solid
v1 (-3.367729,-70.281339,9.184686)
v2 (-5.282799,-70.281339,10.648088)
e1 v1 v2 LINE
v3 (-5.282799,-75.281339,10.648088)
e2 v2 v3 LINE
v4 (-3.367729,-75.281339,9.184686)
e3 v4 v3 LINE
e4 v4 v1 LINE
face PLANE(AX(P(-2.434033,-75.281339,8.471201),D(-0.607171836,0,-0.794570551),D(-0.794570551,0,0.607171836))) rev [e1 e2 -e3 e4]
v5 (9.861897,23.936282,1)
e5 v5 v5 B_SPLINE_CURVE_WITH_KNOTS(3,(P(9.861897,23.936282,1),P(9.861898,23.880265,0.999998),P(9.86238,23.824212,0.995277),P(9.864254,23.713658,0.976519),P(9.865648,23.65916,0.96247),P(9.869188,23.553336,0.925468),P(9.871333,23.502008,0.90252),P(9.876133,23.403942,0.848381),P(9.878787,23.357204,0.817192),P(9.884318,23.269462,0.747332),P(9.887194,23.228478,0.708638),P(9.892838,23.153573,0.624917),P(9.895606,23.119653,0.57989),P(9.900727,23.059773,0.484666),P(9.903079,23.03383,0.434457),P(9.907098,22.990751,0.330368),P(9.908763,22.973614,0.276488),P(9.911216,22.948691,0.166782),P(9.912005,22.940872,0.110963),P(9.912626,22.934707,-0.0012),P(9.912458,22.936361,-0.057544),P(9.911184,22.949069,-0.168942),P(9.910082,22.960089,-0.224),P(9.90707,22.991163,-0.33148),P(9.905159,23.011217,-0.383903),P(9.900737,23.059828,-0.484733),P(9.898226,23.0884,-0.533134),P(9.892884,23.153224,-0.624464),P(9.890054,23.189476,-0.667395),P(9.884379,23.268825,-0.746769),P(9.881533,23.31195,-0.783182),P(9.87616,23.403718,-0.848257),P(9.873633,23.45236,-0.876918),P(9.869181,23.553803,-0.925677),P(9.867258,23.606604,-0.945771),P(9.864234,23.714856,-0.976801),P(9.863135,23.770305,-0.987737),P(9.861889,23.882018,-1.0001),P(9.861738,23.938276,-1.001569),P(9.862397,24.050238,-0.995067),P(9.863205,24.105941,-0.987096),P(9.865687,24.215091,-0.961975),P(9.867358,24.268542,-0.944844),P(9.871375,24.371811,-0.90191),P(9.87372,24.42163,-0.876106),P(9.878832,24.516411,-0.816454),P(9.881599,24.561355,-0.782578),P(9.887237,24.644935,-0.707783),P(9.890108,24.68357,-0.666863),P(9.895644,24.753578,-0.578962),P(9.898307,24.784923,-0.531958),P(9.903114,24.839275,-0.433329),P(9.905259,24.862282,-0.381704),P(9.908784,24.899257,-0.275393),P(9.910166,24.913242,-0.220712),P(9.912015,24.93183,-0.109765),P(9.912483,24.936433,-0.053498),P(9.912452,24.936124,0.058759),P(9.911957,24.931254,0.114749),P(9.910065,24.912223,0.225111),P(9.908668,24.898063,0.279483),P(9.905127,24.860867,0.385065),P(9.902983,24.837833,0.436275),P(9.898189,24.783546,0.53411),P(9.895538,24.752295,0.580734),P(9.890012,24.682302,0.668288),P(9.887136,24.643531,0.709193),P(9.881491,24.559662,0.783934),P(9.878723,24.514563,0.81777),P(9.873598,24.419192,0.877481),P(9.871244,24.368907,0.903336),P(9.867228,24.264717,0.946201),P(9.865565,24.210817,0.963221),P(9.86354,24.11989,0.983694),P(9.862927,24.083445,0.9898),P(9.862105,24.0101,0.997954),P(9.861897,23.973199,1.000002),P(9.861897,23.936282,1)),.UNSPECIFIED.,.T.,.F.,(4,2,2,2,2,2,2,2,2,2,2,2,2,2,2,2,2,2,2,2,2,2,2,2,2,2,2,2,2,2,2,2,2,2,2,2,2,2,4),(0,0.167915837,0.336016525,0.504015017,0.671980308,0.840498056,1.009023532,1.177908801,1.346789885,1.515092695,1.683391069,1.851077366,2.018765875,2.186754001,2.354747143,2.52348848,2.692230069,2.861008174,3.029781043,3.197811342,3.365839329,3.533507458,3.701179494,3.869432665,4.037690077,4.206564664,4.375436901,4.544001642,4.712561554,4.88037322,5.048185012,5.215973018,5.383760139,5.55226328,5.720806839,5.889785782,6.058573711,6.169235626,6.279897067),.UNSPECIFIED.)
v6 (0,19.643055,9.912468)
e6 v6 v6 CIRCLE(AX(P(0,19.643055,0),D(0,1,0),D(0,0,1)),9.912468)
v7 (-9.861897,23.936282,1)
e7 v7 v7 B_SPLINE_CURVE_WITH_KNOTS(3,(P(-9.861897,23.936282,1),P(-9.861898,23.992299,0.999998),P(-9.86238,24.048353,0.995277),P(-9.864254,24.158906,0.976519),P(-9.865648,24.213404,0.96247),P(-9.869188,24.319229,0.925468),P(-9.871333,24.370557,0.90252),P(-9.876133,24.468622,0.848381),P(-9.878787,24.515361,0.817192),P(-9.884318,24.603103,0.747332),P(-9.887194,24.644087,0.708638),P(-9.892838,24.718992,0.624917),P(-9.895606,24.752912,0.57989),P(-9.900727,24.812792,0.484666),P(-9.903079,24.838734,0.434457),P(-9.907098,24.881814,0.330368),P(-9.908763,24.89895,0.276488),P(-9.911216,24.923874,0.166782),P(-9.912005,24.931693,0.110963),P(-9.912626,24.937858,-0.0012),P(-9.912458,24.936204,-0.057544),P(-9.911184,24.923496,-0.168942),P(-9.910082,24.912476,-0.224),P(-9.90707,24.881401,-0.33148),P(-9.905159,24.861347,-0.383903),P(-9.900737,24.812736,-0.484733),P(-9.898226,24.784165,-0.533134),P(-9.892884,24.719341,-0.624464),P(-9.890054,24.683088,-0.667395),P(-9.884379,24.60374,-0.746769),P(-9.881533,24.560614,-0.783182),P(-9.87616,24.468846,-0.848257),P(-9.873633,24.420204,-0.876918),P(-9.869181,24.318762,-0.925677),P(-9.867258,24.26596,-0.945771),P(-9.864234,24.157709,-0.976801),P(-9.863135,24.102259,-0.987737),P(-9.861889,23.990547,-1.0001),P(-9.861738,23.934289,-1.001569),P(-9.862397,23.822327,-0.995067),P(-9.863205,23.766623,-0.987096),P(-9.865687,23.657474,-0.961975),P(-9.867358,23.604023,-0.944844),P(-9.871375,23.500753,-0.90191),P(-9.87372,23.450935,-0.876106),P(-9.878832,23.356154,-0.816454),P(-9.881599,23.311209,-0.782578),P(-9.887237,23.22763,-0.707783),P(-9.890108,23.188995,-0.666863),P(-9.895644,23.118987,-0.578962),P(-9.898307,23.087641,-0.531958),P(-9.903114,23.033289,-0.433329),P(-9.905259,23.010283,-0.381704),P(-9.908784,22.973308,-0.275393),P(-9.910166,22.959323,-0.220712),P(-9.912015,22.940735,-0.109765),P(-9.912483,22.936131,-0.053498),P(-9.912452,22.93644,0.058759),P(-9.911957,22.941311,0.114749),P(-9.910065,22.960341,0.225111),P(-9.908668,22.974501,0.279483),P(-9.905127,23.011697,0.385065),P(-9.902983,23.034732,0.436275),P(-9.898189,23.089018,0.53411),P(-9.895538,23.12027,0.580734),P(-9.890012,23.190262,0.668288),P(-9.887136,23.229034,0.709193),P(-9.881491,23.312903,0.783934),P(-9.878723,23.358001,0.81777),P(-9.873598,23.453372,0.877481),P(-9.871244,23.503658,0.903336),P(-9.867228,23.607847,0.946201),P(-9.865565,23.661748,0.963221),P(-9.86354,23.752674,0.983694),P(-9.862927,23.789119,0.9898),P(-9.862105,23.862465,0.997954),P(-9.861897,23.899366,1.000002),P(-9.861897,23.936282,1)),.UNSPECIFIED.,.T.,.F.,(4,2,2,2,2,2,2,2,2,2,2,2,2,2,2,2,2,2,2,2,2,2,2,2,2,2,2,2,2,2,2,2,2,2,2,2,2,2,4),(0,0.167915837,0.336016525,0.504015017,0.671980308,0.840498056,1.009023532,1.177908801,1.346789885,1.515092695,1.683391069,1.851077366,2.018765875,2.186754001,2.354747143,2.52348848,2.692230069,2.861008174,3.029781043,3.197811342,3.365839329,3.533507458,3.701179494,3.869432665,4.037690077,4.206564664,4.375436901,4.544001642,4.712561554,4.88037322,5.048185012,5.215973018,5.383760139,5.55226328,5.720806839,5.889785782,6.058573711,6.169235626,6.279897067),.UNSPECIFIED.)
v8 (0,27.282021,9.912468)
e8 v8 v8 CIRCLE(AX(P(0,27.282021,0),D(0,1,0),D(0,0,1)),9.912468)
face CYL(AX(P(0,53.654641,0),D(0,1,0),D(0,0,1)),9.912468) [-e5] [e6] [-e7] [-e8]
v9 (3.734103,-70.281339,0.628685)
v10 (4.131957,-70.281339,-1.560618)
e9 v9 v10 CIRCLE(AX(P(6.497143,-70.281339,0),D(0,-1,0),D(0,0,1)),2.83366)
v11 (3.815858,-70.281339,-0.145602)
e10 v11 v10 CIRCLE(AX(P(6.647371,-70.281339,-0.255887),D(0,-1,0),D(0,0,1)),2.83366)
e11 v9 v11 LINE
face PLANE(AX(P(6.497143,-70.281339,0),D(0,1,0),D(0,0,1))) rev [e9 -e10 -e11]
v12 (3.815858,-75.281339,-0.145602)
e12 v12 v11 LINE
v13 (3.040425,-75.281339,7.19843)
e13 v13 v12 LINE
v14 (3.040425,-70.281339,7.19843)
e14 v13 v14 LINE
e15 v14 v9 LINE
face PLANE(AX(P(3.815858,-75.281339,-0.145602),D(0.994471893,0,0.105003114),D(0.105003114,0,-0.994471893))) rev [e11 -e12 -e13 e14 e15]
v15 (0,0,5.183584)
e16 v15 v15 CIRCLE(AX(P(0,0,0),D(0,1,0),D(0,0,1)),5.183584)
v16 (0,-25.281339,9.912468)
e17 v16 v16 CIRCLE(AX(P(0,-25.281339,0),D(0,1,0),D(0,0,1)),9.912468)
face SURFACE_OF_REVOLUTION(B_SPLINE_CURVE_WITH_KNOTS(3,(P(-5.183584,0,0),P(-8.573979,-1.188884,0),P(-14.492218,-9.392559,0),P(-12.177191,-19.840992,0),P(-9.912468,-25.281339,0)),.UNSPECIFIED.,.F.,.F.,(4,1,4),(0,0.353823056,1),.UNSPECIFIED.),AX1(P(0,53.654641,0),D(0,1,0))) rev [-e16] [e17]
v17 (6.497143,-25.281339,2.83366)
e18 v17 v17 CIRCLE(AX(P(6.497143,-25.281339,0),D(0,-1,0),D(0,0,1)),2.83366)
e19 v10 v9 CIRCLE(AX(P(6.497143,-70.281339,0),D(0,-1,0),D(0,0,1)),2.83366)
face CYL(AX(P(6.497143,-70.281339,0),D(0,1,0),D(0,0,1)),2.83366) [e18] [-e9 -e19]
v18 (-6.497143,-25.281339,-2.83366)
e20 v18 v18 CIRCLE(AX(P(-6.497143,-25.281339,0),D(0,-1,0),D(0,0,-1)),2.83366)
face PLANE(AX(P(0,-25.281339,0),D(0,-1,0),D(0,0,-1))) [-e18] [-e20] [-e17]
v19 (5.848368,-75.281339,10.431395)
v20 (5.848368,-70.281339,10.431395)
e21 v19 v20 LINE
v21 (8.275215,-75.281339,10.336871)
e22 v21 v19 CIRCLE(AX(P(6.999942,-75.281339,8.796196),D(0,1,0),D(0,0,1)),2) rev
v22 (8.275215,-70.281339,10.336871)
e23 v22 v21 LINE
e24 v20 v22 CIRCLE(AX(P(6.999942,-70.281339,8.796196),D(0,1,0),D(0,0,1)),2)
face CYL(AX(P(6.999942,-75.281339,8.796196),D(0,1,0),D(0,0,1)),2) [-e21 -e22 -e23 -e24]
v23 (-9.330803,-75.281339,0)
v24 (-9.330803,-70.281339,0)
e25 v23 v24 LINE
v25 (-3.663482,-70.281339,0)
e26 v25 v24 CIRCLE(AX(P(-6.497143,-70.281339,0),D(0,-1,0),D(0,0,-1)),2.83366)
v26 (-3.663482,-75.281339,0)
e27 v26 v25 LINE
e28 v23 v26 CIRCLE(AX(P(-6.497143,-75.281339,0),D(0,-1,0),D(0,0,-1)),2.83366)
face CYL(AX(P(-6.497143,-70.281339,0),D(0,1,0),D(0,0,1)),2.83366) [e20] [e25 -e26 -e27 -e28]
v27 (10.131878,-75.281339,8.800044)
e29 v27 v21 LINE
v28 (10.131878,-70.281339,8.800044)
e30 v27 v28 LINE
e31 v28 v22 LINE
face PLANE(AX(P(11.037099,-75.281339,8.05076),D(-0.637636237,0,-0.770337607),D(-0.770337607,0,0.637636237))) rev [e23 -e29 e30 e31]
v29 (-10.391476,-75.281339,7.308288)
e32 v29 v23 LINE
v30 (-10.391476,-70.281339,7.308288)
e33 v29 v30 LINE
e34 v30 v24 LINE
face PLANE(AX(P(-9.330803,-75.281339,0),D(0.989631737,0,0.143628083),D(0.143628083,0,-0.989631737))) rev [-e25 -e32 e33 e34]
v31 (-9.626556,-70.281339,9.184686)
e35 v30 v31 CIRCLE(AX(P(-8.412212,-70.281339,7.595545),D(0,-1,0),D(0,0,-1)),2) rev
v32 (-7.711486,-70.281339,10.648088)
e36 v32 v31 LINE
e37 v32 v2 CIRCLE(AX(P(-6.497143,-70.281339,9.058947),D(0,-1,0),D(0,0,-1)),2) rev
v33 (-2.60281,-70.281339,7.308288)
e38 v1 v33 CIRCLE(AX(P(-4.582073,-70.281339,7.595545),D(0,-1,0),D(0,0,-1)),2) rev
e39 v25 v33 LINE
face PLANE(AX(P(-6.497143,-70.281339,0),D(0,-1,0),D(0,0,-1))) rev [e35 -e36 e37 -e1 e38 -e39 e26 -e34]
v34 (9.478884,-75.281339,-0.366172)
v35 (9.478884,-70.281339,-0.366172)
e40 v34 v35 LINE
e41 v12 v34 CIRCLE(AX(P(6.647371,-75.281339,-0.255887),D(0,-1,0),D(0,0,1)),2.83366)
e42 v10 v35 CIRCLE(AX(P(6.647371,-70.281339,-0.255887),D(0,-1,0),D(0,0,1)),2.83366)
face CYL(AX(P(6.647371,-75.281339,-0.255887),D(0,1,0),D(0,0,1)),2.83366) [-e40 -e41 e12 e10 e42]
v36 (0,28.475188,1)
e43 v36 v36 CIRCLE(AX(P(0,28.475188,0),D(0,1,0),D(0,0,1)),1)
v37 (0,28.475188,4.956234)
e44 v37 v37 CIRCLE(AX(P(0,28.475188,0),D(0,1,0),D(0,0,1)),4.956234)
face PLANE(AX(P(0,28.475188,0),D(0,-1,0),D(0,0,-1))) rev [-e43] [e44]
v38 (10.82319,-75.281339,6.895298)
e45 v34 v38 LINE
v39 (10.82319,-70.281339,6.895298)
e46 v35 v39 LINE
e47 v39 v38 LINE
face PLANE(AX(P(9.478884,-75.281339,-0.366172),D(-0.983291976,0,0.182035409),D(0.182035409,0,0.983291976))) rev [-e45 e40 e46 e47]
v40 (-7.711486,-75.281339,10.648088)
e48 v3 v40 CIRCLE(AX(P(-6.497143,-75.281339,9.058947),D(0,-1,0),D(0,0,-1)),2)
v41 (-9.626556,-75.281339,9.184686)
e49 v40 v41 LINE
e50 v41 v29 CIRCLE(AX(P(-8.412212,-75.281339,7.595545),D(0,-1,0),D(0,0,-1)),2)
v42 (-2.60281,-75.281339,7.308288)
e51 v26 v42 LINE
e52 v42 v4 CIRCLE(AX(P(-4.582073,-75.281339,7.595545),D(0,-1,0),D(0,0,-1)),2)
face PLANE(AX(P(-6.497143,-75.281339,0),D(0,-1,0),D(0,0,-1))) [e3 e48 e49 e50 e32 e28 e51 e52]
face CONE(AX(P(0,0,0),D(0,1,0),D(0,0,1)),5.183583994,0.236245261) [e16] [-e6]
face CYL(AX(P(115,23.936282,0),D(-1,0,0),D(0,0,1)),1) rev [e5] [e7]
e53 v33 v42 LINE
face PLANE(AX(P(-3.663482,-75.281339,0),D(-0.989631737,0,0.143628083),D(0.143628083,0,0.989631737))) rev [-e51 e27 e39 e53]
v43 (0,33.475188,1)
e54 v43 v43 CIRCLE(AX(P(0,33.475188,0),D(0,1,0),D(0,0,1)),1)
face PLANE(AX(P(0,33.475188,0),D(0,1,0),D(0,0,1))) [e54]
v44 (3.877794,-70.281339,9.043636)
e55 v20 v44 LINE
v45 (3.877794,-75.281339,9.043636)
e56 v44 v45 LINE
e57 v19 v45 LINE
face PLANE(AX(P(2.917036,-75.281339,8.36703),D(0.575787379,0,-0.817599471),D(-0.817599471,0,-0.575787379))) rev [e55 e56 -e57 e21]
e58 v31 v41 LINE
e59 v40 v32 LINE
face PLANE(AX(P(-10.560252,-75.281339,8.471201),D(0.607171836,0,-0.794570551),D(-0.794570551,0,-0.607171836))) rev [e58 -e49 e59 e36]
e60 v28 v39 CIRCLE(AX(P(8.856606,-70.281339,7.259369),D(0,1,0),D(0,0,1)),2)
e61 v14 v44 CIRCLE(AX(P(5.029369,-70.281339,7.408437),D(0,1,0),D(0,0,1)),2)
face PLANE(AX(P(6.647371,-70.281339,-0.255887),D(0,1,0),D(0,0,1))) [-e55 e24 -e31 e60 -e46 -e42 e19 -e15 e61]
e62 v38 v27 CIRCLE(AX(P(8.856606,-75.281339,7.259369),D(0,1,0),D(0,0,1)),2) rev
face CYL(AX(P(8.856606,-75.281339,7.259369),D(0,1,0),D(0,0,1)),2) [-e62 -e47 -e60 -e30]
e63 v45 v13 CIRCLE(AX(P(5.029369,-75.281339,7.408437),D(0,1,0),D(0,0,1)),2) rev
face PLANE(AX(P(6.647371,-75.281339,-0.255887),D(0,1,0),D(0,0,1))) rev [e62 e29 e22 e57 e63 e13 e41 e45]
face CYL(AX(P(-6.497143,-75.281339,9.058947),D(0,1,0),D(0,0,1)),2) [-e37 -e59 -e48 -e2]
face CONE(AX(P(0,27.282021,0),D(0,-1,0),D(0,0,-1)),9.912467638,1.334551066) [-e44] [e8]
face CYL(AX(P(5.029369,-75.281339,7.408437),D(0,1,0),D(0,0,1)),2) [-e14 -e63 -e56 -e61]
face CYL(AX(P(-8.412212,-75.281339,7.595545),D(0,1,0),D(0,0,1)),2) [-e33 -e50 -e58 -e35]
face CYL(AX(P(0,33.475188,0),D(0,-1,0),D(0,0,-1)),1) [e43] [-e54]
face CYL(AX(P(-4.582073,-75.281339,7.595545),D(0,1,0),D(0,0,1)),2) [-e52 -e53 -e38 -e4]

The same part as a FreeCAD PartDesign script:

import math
import FreeCAD as App
import Part
import Sketcher
from FreeCAD import Vector
Q = App.Units.Quantity


def edges_at(feature, points):
    """Names of the edges that pass closest to the given points."""
    edges = feature.Shape.Edges
    near = lambda p: min(range(len(edges)), key=lambda i: edges[i].distToShape(Part.Vertex(*p))[0])
    return sorted({f"Edge{near(p) + 1}" for p in points})

doc = App.newDocument("Part")
body = doc.addObject("PartDesign::Body", "Body")

sketch1 = body.newObject("Sketcher::SketchObject", "Sketch")
sketch1.AttachmentSupport = (doc.getObject("XY_Plane"), [""])
sketch1.MapMode = "FlatFace"
sketch1.addGeometry(Part.LineSegment(Vector(0, 28.475188, 0), Vector(-4.956234, 28.475188, 0)), False)
sketch1.addGeometry(Part.LineSegment(Vector(-4.956234, 28.475188, 0), Vector(-9.912468, 27.282021, 0)), False)
sketch1.addGeometry(Part.LineSegment(Vector(-9.912468, 27.282021, 0), Vector(-9.912468, 19.643055, 0)), False)
sketch1.addGeometry(Part.LineSegment(Vector(-9.912468, 19.643055, 0), Vector(-5.183584, 0, 0)), False)
sketch1.addGeometry(Part.BSplineCurve([Vector(-5.183584, 0, 0), Vector(-8.573979, -1.188884, 0), Vector(-14.492218, -9.392559, 0), Vector(-12.177191, -19.840992, 0), Vector(-9.912468, -25.281339, 0)], [4, 1, 4], [0, 0.353823056, 1], False, 3, [1, 1, 1, 1, 1], False), False)
sketch1.addGeometry(Part.LineSegment(Vector(-9.912468, -25.281339, 0), Vector(0, -25.281339, 0)), False)
sketch1.addGeometry(Part.LineSegment(Vector(0, -25.281339, 0), Vector(0, 28.475188, 0)), False)
sketch1.addConstraint(Sketcher.Constraint("Block", 4))
sketch1.addConstraint(Sketcher.Constraint("Coincident", 0, 2, 1, 1))
sketch1.addConstraint(Sketcher.Constraint("Coincident", 1, 2, 2, 1))
sketch1.addConstraint(Sketcher.Constraint("Coincident", 2, 2, 3, 1))
sketch1.addConstraint(Sketcher.Constraint("Coincident", 3, 2, 4, 1))
sketch1.addConstraint(Sketcher.Constraint("Coincident", 4, 2, 5, 1))
sketch1.addConstraint(Sketcher.Constraint("Coincident", 5, 2, 6, 1))
sketch1.addConstraint(Sketcher.Constraint("Coincident", 6, 2, 0, 1))
sketch1.addConstraint(Sketcher.Constraint("Horizontal", 0))
sketch1.addConstraint(Sketcher.Constraint("Vertical", 2))
sketch1.addConstraint(Sketcher.Constraint("Horizontal", 5))
sketch1.addConstraint(Sketcher.Constraint("Vertical", 6))
sketch1.addConstraint(Sketcher.Constraint("PointOnObject", 5, 2, -2))
sketch1.addConstraint(Sketcher.Constraint("DistanceX", 0, 2, 0, 1, Q("4.956234 mm")))
sketch1.addConstraint(Sketcher.Constraint("DistanceY", 2, 2, 2, 1, Q("7.638966 mm")))
sketch1.addConstraint(Sketcher.Constraint("DistanceY", 6, 1, 6, 2, Q("53.756528 mm")))
sketch1.addConstraint(Sketcher.Constraint("DistanceY", -1, 1, 1, 2, Q("27.282021 mm")))
sketch1.addConstraint(Sketcher.Constraint("Distance", 1, Q("5.097833 mm")))
revolution = body.newObject("PartDesign::Revolution", "Revolution")
revolution.Profile = sketch1
revolution.ReferenceAxis = (sketch1, ["V_Axis"])
revolution.Angle = 360

sketch2 = body.newObject("Sketcher::SketchObject", "Sketch001")
sketch2.AttachmentSupport = (doc.getObject("XZ_Plane"), [""])
sketch2.MapMode = "FlatFace"
sketch2.AttachmentOffset = App.Placement(Vector(0, 0, 25.281339), App.Rotation())
sketch2.addGeometry(Part.Circle(Vector(-6.5, 0, 0), Vector(0, 0, 1), 2.8), False)
sketch2.addGeometry(Part.Circle(Vector(6.5, 0, 0), Vector(0, 0, 1), 2.8), False)
sketch2.addConstraint(Sketcher.Constraint("Equal", 0, 1))
sketch2.addConstraint(Sketcher.Constraint("Symmetric", 0, 3, 1, 3, -1, 1))
sketch2.addConstraint(Sketcher.Constraint("PointOnObject", 0, 3, -1))
sketch2.addConstraint(Sketcher.Constraint("Diameter", 0, Q("5.66732 mm")))
sketch2.addConstraint(Sketcher.Constraint("DistanceX", 0, 3, -1, 1, Q("6.497143 mm")))
pad1 = body.newObject("PartDesign::Pad", "Pad")
pad1.Profile = sketch2
pad1.Length = 45

sketch3 = body.newObject("Sketcher::SketchObject", "Sketch002")
sketch3.AttachmentSupport = (doc.getObject("XZ_Plane"), [""])
sketch3.MapMode = "FlatFace"
sketch3.AttachmentOffset = App.Placement(Vector(0, 0, 70.281339), App.Rotation())
sketch3.addGeometry(Part.LineSegment(Vector(-10.560252, 8.471201, 0), Vector(-9.330803, 0, 0)), False)
sketch3.addGeometry(Part.ArcOfCircle(Part.Circle(Vector(-6.497143, 0, 0), Vector(0, 0, 1), 2.83366), math.radians(180), math.radians(360)), False)
sketch3.addGeometry(Part.LineSegment(Vector(-3.663482, 0, 0), Vector(-2.434033, 8.471201, 0)), False)
sketch3.addGeometry(Part.LineSegment(Vector(-2.434033, 8.471201, 0), Vector(-6.497143, 11.57603, 0)), False)
sketch3.addGeometry(Part.LineSegment(Vector(-6.497143, 11.57603, 0), Vector(-10.560252, 8.471201, 0)), False)
sketch3.addGeometry(Part.LineSegment(Vector(7.097907, 11.311372, 0), Vector(2.917036, 8.36703, 0)), False)
sketch3.addGeometry(Part.LineSegment(Vector(2.917036, 8.36703, 0), Vector(3.815858, -0.145602, 0)), False)
sketch3.addGeometry(Part.ArcOfCircle(Part.Circle(Vector(6.647371, -0.255887, 0), Vector(0, 0, 1), 2.83366), math.radians(177.769503), math.radians(357.769503)), False)
sketch3.addGeometry(Part.LineSegment(Vector(9.478884, -0.366172, 0), Vector(11.037099, 8.05076, 0)), False)
sketch3.addGeometry(Part.LineSegment(Vector(11.037099, 8.05076, 0), Vector(7.097907, 11.311372, 0)), False)
sketch3.addConstraint(Sketcher.Constraint("Coincident", 0, 2, 1, 1))
sketch3.addConstraint(Sketcher.Constraint("Coincident", 1, 2, 2, 1))
sketch3.addConstraint(Sketcher.Constraint("Coincident", 2, 2, 3, 1))
sketch3.addConstraint(Sketcher.Constraint("Coincident", 3, 2, 4, 1))
sketch3.addConstraint(Sketcher.Constraint("Coincident", 4, 2, 0, 1))
sketch3.addConstraint(Sketcher.Constraint("Coincident", 5, 2, 6, 1))
sketch3.addConstraint(Sketcher.Constraint("Coincident", 6, 2, 7, 1))
sketch3.addConstraint(Sketcher.Constraint("Coincident", 7, 2, 8, 1))
sketch3.addConstraint(Sketcher.Constraint("Coincident", 8, 2, 9, 1))
sketch3.addConstraint(Sketcher.Constraint("Coincident", 9, 2, 5, 1))
sketch3.addConstraint(Sketcher.Constraint("PointOnObject", 1, 3, -1))
sketch3.addConstraint(Sketcher.Constraint("PointOnObject", 0, 2, -1))
sketch3.addConstraint(Sketcher.Constraint("PointOnObject", 1, 2, -1))
sketch3.addConstraint(Sketcher.Constraint("Radius", 1, Q("2.83366 mm")))
sketch3.addConstraint(Sketcher.Constraint("Radius", 7, Q("2.83366 mm")))
sketch3.addConstraint(Sketcher.Constraint("DistanceY", 5, 2, 3, 2, Q("3.209 mm")))
sketch3.addConstraint(Sketcher.Constraint("DistanceX", 1, 3, 6, 2, Q("10.313 mm")))
sketch3.addConstraint(Sketcher.Constraint("DistanceY", -1, 1, 2, 2, Q("8.471201 mm")))
sketch3.addConstraint(Sketcher.Constraint("DistanceY", -1, 1, 4, 2, Q("8.471201 mm")))
sketch3.addConstraint(Sketcher.Constraint("DistanceY", 6, 2, -1, 1, Q("0.145602 mm")))
sketch3.addConstraint(Sketcher.Constraint("DistanceX", -1, 1, 8, 2, Q("11.037099 mm")))
sketch3.addConstraint(Sketcher.Constraint("DistanceX", -1, 1, 7, 3, Q("6.647371 mm")))
sketch3.addConstraint(Sketcher.Constraint("DistanceY", -1, 1, 3, 2, Q("11.57603 mm")))
sketch3.addConstraint(Sketcher.Constraint("DistanceY", -1, 1, 8, 2, Q("8.05076 mm")))
sketch3.addConstraint(Sketcher.Constraint("DistanceX", 1, 2, 2, 2, Q("1.22945 mm")))
sketch3.addConstraint(Sketcher.Constraint("DistanceX", 3, 2, 2, 2, Q("4.06311 mm")))
sketch3.addConstraint(Sketcher.Constraint("DistanceX", 4, 2, 3, 2, Q("4.06311 mm")))
sketch3.addConstraint(Sketcher.Constraint("DistanceX", 2, 2, 5, 2, Q("5.351069 mm")))
sketch3.addConstraint(Sketcher.Constraint("DistanceY", 7, 2, 6, 2, Q("0.22057 mm")))
sketch3.addConstraint(Sketcher.Constraint("DistanceX", 6, 2, 8, 2, Q("7.221241 mm")))
sketch3.addConstraint(Sketcher.Constraint("DistanceY", 8, 2, 9, 2, Q("3.260612 mm")))
sketch3.addConstraint(Sketcher.Constraint("DistanceX", 5, 2, 9, 2, Q("4.18087 mm")))
pad2 = body.newObject("PartDesign::Pad", "Pad001")
pad2.Profile = sketch3
pad2.Length = 5
doc.recompute()

fillet = body.newObject("PartDesign::Fillet", "Fillet")
fillet.Base = (pad2, edges_at(pad2, [(-6.497, -72.781, 11.576), (7.098, -72.781, 11.311)]))
fillet.Radius = 2
doc.recompute()

fillet2 = body.newObject("PartDesign::Fillet", "Fillet001")
fillet2.Base = (fillet, edges_at(fillet, [
    (-2.434, -72.781, 8.471),
    (-10.56, -72.781, 8.471),
    (11.037, -72.781, 8.051),
    (2.917, -72.781, 8.367),
]))
fillet2.Radius = 2

sketch4 = body.newObject("Sketcher::SketchObject", "Sketch003")
sketch4.AttachmentSupport = (doc.getObject("YZ_Plane"), [""])
sketch4.MapMode = "FlatFace"
sketch4.addGeometry(Part.Circle(Vector(23.9, 0, 0), Vector(0, 0, 1), 1), False)
sketch4.addConstraint(Sketcher.Constraint("PointOnObject", 0, 3, -1))
sketch4.addConstraint(Sketcher.Constraint("Diameter", 0, Q("2 mm")))
sketch4.addConstraint(Sketcher.Constraint("DistanceX", -1, 1, 0, 3, Q("23.936282 mm")))
pocket1 = body.newObject("PartDesign::Pocket", "Pocket")
pocket1.Profile = sketch4
pocket1.Type = "ThroughAll"
pocket1.Midplane = True

sketch5 = body.newObject("Sketcher::SketchObject", "Sketch004")
sketch5.AttachmentSupport = (doc.getObject("XZ_Plane"), [""])
sketch5.MapMode = "FlatFace"
sketch5.AttachmentOffset = App.Placement(Vector(0, 0, -28.475188), App.Rotation())
sketch5.addGeometry(Part.Circle(Vector(0, 0, 0), Vector(0, 0, 1), 1), False)
sketch5.addConstraint(Sketcher.Constraint("Coincident", 0, 3, -1, 1))
sketch5.addConstraint(Sketcher.Constraint("Diameter", 0, Q("2 mm")))
pad3 = body.newObject("PartDesign::Pad", "Pad002")
pad3.Profile = sketch5
pad3.Length = 5
pad3.Reversed = True

doc.recompute()
